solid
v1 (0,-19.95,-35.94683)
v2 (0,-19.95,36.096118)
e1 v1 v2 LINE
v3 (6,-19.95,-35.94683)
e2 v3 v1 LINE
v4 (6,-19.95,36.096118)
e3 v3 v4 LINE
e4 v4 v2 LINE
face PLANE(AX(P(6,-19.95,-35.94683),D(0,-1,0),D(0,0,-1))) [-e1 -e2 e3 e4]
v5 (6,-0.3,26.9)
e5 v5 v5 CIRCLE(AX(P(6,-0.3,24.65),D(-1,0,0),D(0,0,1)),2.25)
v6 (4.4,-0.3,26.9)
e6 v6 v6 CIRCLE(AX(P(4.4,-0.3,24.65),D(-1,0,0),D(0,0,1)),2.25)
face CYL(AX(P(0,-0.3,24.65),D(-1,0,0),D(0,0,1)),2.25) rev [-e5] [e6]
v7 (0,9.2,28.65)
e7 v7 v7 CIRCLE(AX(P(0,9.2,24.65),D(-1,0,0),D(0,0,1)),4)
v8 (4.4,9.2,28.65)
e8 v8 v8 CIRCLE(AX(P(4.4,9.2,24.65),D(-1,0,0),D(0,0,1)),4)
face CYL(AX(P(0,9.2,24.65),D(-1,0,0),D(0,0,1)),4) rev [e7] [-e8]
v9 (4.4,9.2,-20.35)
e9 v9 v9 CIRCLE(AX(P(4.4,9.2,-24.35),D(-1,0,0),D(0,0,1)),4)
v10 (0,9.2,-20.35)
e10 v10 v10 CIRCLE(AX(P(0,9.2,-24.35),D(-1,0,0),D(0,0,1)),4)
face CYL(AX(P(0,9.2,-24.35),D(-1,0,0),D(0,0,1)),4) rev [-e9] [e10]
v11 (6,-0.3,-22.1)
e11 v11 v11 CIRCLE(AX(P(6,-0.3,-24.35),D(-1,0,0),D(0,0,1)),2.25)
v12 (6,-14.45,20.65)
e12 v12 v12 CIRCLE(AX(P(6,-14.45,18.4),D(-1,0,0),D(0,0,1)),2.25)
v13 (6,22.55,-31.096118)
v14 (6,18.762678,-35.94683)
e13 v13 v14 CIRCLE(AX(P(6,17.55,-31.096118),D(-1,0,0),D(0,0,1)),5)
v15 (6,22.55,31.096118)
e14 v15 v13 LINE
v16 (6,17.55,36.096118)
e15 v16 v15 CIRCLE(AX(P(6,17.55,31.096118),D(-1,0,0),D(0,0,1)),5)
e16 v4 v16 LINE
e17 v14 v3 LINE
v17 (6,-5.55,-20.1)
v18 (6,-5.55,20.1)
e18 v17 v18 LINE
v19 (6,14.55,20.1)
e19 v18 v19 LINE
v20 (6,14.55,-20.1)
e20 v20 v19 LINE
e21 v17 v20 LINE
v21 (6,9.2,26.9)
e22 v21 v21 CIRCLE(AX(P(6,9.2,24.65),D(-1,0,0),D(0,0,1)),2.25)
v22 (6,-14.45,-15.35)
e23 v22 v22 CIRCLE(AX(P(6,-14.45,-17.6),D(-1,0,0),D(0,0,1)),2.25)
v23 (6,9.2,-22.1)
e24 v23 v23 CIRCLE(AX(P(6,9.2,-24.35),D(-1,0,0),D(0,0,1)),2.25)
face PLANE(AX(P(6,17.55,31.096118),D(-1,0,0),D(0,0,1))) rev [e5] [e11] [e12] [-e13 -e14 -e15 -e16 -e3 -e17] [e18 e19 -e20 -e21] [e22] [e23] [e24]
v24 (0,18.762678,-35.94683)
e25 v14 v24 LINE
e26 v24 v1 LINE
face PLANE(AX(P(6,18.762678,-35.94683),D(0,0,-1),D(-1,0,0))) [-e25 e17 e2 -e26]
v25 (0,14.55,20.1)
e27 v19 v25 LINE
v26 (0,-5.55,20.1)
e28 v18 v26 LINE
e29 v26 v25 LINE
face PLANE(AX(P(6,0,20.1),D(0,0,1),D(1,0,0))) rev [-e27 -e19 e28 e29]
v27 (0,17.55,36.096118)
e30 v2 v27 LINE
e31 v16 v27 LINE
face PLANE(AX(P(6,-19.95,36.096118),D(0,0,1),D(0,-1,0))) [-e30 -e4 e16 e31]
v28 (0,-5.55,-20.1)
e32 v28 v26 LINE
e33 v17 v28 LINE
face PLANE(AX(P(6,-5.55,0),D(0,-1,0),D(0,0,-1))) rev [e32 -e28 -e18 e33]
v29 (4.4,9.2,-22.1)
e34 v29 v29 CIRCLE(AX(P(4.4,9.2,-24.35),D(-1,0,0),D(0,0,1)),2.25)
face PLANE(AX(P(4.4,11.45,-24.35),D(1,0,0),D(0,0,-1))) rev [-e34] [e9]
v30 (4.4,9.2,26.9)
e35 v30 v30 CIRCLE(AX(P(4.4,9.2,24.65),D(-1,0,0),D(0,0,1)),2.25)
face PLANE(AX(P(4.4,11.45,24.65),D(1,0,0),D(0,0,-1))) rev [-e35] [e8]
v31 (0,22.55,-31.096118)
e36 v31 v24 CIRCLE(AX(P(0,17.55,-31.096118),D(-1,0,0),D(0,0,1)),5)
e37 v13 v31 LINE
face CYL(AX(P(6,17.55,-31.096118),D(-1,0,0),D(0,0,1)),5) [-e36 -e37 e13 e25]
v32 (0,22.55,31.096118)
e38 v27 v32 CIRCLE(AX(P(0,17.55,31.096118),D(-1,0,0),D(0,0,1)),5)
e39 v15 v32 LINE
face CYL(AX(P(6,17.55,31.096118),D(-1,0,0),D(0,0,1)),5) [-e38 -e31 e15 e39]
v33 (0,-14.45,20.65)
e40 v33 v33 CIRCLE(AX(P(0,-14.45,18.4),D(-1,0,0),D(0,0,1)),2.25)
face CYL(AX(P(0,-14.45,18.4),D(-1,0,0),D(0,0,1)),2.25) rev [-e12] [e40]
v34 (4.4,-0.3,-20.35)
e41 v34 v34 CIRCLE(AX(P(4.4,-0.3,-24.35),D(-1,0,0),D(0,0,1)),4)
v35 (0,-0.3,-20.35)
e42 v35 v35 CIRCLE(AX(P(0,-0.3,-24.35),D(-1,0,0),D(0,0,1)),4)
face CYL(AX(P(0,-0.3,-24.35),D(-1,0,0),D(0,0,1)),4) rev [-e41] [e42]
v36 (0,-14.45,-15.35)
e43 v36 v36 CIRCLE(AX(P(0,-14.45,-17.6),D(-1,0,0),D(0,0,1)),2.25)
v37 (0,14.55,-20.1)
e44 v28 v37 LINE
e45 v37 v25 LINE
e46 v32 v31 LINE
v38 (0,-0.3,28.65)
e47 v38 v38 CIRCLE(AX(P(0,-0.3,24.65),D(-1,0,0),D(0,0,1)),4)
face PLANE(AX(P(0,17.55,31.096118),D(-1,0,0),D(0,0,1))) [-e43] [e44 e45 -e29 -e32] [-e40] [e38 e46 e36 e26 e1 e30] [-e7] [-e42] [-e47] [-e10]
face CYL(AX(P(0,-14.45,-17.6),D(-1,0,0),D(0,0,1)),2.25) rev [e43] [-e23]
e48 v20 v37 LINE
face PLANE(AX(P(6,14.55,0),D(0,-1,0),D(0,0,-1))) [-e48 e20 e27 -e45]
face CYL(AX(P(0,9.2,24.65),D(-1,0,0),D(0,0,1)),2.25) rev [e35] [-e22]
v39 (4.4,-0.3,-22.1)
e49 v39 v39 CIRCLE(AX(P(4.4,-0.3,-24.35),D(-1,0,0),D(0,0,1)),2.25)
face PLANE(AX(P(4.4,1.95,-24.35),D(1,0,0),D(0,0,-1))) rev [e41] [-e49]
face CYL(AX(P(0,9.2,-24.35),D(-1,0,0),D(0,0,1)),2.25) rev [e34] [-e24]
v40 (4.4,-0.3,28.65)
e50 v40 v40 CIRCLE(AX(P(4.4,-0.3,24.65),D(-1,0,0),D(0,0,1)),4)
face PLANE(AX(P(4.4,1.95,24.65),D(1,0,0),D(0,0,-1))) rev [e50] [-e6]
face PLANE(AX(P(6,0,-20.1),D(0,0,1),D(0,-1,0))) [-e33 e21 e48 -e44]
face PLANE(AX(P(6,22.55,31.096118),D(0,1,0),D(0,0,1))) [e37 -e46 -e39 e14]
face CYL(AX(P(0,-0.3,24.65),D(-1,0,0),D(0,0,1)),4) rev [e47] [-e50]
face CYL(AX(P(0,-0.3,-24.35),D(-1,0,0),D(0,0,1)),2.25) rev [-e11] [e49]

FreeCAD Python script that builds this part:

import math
import FreeCAD as App
import Part
import Sketcher
from FreeCAD import Vector


def add_polygon(sketch, points):
    """Adds a closed chain of lines whose ends are joined by coincident constraints."""
    first, n = sketch.GeometryCount, len(points)
    for a, b in zip(points, points[1:] + points[:1]):
        sketch.addGeometry(Part.LineSegment(App.Vector(*a, 0), App.Vector(*b, 0)), False)
    for i in range(n):
        sketch.addConstraint(Sketcher.Constraint("Coincident", first + i, 2, first + (i + 1) % n, 1))

doc = App.newDocument("Part")
body = doc.addObject("PartDesign::Body", "Body")

sketch1 = body.newObject("Sketcher::SketchObject", "Sketch")
sketch1.AttachmentSupport = (doc.getObject("YZ_Plane"), [""])
sketch1.MapMode = "FlatFace"
sketch1.addGeometry(Part.LineSegment(Vector(17.55, 36.096118, 0), Vector(-19.95, 36.096118, 0)), False)
sketch1.addGeometry(Part.LineSegment(Vector(-19.95, 36.096118, 0), Vector(-19.95, -35.94683, 0)), False)
sketch1.addGeometry(Part.LineSegment(Vector(-19.95, -35.94683, 0), Vector(18.762678, -35.94683, 0)), False)
sketch1.addGeometry(Part.ArcOfCircle(Part.Circle(Vector(17.55, -31.096118, 0), Vector(0, 0, 1), 5), math.radians(-75.963757), math.radians(0)), False)
sketch1.addGeometry(Part.LineSegment(Vector(22.55, -31.096118, 0), Vector(22.55, 31.096118, 0)), False)
sketch1.addGeometry(Part.ArcOfCircle(Part.Circle(Vector(17.55, 31.096118, 0), Vector(0, 0, 1), 5), math.radians(0), math.radians(90)), False)
add_polygon(sketch1, [(-5.55, 20.1), (14.55, 20.1), (14.55, -20.1), (-5.55, -20.1)])
sketch1.addConstraint([
    Sketcher.Constraint("Coincident", 0, 2, 1, 1),
    Sketcher.Constraint("Coincident", 1, 2, 2, 1),
    Sketcher.Constraint("Coincident", 2, 2, 3, 1),
    Sketcher.Constraint("Tangent", 3, 2, 4, 1),
    Sketcher.Constraint("Tangent", 4, 2, 5, 1),
    Sketcher.Constraint("Tangent", 5, 2, 0, 1),
    Sketcher.Constraint("Horizontal", 0),
    Sketcher.Constraint("Vertical", 1),
    Sketcher.Constraint("Horizontal", 2),
    Sketcher.Constraint("Vertical", 4),
    Sketcher.Constraint("Horizontal", 6),
    Sketcher.Constraint("Vertical", 7),
    Sketcher.Constraint("Horizontal", 8),
    Sketcher.Constraint("Vertical", 9),
    Sketcher.Constraint("Equal", 3, 5),
    Sketcher.Constraint("Radius", 3, 5.0),
    Sketcher.Constraint("DistanceX", 0, 2, 0, 1, 37.5),
    Sketcher.Constraint("DistanceX", 6, 1, 6, 2, 20.1),
    Sketcher.Constraint("DistanceY", 7, 2, 7, 1, 40.2),
    Sketcher.Constraint("DistanceX", 6, 2, 5, 3, 3.0),
    Sketcher.Constraint("DistanceY", -1, 1, 6, 2, 20.1),
    Sketcher.Constraint("DistanceX", -1, 1, 3, 3, 17.55),
    Sketcher.Constraint("DistanceX", 2, 1, 2, 2, 38.712678),
    Sketcher.Constraint("DistanceY", 1, 2, 1, 1, 72.042948),
    Sketcher.Constraint("DistanceY", 1, 2, -1, 1, 35.94683),
])
pad1 = body.newObject("PartDesign::Pad", "Pad")
pad1.Profile = sketch1
pad1.Length = 6

sketch2 = body.newObject("Sketcher::SketchObject", "Sketch001")
sketch2.AttachmentSupport = (doc.getObject("YZ_Plane"), [""])
sketch2.MapMode = "FlatFace"
sketch2.addGeometry([
    Part.Circle(Vector(-0.3, 24.65, 0), Vector(0, 0, 1), 2.25),
    Part.Circle(Vector(9.2, 24.65, 0), Vector(0, 0, 1), 2.25),
    Part.Circle(Vector(-0.3, -24.35, 0), Vector(0, 0, 1), 2.25),
    Part.Circle(Vector(9.2, -24.35, 0), Vector(0, 0, 1), 2.25),
], False)
sketch2.addConstraint([
    Sketcher.Constraint("Equal", 0, 1),
    Sketcher.Constraint("Equal", 1, 2),
    Sketcher.Constraint("Equal", 2, 3),
    Sketcher.Constraint("Horizontal", 0, 3, 1, 3),
    Sketcher.Constraint("Horizontal", 2, 3, 3, 3),
    Sketcher.Constraint("Vertical", 0, 3, 2, 3),
    Sketcher.Constraint("Vertical", 1, 3, 3, 3),
    Sketcher.Constraint("Diameter", 0, 4.5),
    Sketcher.Constraint("DistanceY", 2, 3, 0, 3, 49.0),
    Sketcher.Constraint("DistanceX", 0, 3, -1, 1, 0.3),
    Sketcher.Constraint("DistanceX", -1, 1, 1, 3, 9.2),
    Sketcher.Constraint("DistanceY", -1, 1, 0, 3, 24.65),
])
doc.recompute()
hole = body.newObject("PartDesign::Hole", "Hole")
hole.Profile = sketch2
hole.ThreadType = "None"
hole.Diameter = 4.5
hole.DepthType = "ThroughAll"
hole.HoleCutType = "Counterbore"
hole.HoleCutDiameter = 8
hole.HoleCutDepth = 4.4
hole.Reversed = True

sketch3 = body.newObject("Sketcher::SketchObject", "Sketch002")
sketch3.AttachmentSupport = (doc.getObject("YZ_Plane"), [""])
sketch3.MapMode = "FlatFace"
sketch3.addGeometry([
    Part.Circle(Vector(-14.45, -17.6, 0), Vector(0, 0, 1), 2.25),
    Part.Circle(Vector(-14.45, 18.4, 0), Vector(0, 0, 1), 2.25),
], False)
sketch3.addConstraint([
    Sketcher.Constraint("Equal", 0, 1),
    Sketcher.Constraint("Vertical", 0, 3, 1, 3),
    Sketcher.Constraint("Diameter", 0, 4.5),
    Sketcher.Constraint("DistanceY", 0, 3, 1, 3, 36.0),
    Sketcher.Constraint("DistanceY", 0, 3, -1, 1, 17.6),
    Sketcher.Constraint("DistanceX", 0, 3, -1, 1, 14.45),
])
doc.recompute()
hole2 = body.newObject("PartDesign::Hole", "Hole001")
hole2.Profile = sketch3
hole2.ThreadType = "None"
hole2.Diameter = 4.5
hole2.DepthType = "ThroughAll"
hole2.Reversed = True

doc.recompute()
